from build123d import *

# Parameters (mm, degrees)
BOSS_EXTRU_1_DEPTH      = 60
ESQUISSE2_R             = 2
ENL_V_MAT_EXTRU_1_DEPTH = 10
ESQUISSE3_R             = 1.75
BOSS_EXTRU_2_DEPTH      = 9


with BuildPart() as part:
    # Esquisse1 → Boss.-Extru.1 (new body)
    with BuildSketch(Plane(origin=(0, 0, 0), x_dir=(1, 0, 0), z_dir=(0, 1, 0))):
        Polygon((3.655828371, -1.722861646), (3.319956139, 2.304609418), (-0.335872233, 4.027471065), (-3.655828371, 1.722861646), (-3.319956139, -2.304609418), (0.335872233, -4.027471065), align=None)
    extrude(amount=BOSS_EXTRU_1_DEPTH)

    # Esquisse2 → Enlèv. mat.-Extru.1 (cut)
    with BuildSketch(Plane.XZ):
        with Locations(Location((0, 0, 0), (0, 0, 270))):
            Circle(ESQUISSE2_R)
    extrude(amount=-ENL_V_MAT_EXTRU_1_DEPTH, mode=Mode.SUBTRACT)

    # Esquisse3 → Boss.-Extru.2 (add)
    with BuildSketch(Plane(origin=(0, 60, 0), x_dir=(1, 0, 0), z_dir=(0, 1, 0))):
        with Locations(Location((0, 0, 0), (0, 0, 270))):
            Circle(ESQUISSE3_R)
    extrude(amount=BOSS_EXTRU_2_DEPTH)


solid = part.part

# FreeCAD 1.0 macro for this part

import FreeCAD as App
import Part
import Sketcher
Q = App.Units.Quantity

doc = App.newDocument("Part")
params = doc.addObject("Spreadsheet::Sheet", "Params")
for row, (alias, value) in enumerate([
    ("pad1_length", "60 mm"),
    ("sketch2_diameter", "4 mm"),
    ("pocket1_length", "10 mm"),
    ("sketch3_diameter", "3.5 mm"),
    ("pad2_length", "9 mm"),
], start=1):
    params.set(f"A{row}", alias)
    params.set(f"B{row}", "=" + value)
    params.setAlias(f"B{row}", alias)

body = doc.addObject("PartDesign::Body", "Body")

# Sketch on XZ plane
sketch1 = body.newObject("Sketcher::SketchObject", "Sketch")
sketch1.AttachmentSupport = (doc.getObject("XZ_Plane"), [""])
sketch1.MapMode = "FlatFace"
sketch1.addGeometry([
    Part.LineSegment(App.Vector(3.7, 1.7, 0), App.Vector(3.3, -2.3, 0)),  # 0
    Part.LineSegment(App.Vector(3.3, -2.3, 0), App.Vector(-0.3, -4, 0)),  # 1
    Part.LineSegment(App.Vector(-0.3, -4, 0), App.Vector(-3.7, -1.7, 0)),  # 2
    Part.LineSegment(App.Vector(-3.7, -1.7, 0), App.Vector(-3.3, 2.3, 0)),  # 3
    Part.LineSegment(App.Vector(-3.3, 2.3, 0), App.Vector(0.3, 4, 0)),  # 4
    Part.LineSegment(App.Vector(0.3, 4, 0), App.Vector(3.7, 1.7, 0)),  # 5
], False)
sketch1.addConstraint([
    Sketcher.Constraint("Coincident", 0, 2, 1, 1),
    Sketcher.Constraint("Coincident", 1, 2, 2, 1),
    Sketcher.Constraint("Coincident", 2, 2, 3, 1),
    Sketcher.Constraint("Coincident", 3, 2, 4, 1),
    Sketcher.Constraint("Coincident", 4, 2, 5, 1),
    Sketcher.Constraint("Coincident", 5, 2, 0, 1),
    Sketcher.Constraint("Symmetric", 0, 2, 3, 2, -1, 1),
    Sketcher.Constraint("Symmetric", 1, 2, 4, 2, -1, 1),
    Sketcher.Constraint("Symmetric", 2, 2, 5, 2, -1, 1),
    Sketcher.Constraint("Equal", 0, 1),
    Sketcher.Constraint("Equal", 1, 2),
    Sketcher.Constraint("DistanceX", 2, 2, 4, 2, Q("3.991701 mm")),
    Sketcher.Constraint("Distance", 0, Q("4.041452 mm")),
    Sketcher.Constraint("DistanceY", 0, 2, -1, 1, Q("2.304609 mm")),
    Sketcher.Constraint("DistanceY", 1, 2, -1, 1, Q("4.027471 mm")),
])
pad1 = body.newObject("PartDesign::Pad", "Pad")
pad1.Profile = sketch1
pad1.setExpression("Length", "Params.pad1_length")
pad1.Reversed = True

# Sketch on XZ plane
sketch2 = body.newObject("Sketcher::SketchObject", "Sketch001")
sketch2.AttachmentSupport = (doc.getObject("XZ_Plane"), [""])
sketch2.MapMode = "FlatFace"
sketch2.addGeometry(Part.Circle(App.Vector(0, 0, 0), App.Vector(0, 0, 1), 2), False)
sketch2.addConstraint([
    Sketcher.Constraint("Coincident", 0, 3, -1, 1),
    Sketcher.Constraint("Diameter", 0, Q("4 mm")),
])
sketch2.setExpression("Constraints[1]", "Params.sketch2_diameter")
pocket1 = body.newObject("PartDesign::Pocket", "Pocket")
pocket1.Profile = sketch2
pocket1.setExpression("Length", "Params.pocket1_length")

# Sketch on XZ plane
sketch3 = body.newObject("Sketcher::SketchObject", "Sketch002")
sketch3.AttachmentSupport = (doc.getObject("XZ_Plane"), [""])
sketch3.MapMode = "FlatFace"
sketch3.AttachmentOffset = App.Placement(App.Vector(0, 0, -60), App.Rotation())
sketch3.addGeometry(Part.Circle(App.Vector(0, 0, 0), App.Vector(0, 0, 1), 1.8), False)
sketch3.addConstraint([
    Sketcher.Constraint("Coincident", 0, 3, -1, 1),
    Sketcher.Constraint("Diameter", 0, Q("3.5 mm")),
])
sketch3.setExpression("Constraints[1]", "Params.sketch3_diameter")
pad2 = body.newObject("PartDesign::Pad", "Pad001")
pad2.Profile = sketch3
pad2.setExpression("Length", "Params.pad2_length")
pad2.Reversed = True

doc.recompute()
